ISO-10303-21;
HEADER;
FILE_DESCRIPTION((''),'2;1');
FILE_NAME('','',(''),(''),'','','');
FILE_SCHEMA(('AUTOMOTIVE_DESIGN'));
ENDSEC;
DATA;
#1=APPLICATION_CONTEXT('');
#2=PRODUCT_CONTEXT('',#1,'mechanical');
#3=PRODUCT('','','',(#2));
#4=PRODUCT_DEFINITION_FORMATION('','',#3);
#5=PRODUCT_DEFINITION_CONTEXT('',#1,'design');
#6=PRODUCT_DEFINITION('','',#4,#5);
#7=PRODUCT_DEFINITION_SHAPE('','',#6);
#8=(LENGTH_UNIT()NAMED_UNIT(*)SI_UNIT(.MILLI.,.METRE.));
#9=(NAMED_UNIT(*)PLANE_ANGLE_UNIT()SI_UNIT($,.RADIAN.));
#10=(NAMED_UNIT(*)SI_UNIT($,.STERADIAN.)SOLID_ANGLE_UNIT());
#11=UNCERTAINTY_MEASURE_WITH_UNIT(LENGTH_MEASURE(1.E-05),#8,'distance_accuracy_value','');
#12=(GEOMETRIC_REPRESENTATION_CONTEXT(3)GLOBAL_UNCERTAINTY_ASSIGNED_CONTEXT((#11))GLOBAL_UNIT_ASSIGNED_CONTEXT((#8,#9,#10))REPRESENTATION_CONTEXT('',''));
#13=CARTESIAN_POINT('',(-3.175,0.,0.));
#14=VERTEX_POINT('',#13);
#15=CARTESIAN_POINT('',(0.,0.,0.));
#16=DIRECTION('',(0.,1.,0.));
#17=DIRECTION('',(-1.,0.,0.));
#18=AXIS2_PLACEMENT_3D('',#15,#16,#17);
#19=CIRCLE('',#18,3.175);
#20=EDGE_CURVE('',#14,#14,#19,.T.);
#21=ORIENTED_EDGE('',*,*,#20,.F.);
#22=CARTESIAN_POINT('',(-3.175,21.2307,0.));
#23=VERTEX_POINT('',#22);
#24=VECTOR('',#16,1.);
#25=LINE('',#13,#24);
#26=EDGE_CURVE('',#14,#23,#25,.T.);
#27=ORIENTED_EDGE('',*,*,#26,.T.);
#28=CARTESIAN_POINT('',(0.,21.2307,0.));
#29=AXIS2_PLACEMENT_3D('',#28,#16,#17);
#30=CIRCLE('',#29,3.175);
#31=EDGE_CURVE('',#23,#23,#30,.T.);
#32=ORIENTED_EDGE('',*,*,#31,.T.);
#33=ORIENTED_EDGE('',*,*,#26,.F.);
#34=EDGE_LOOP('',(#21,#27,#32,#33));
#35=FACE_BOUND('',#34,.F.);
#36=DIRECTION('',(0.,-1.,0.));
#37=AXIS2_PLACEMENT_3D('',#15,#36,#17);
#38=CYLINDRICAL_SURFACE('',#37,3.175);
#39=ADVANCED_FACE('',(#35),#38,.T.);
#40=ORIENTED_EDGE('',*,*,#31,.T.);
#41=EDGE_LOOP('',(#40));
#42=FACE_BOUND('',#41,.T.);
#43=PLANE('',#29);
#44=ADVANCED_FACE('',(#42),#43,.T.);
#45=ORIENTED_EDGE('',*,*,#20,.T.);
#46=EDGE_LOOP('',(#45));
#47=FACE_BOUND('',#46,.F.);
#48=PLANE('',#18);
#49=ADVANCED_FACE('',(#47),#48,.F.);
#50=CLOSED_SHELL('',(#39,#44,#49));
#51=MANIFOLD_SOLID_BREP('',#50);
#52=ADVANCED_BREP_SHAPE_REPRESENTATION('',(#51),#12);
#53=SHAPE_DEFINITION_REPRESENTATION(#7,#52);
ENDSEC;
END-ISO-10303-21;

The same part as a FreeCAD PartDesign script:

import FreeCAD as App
import Part
import Sketcher

V = App.Vector
Q = App.Units.Quantity

doc = App.newDocument("Part")
body = doc.addObject("PartDesign::Body", "Body")

sketch1 = doc.addObject("Sketcher::SketchObject", "Sketch")
body.addObject(sketch1)
sketch1.AttachmentSupport = (doc.XZ_Plane, [""])
sketch1.MapMode = "FlatFace"
sketch1.addGeometry(Part.Circle(V(0, 0, 0), V(0, 0, 1), 3.175), False)
sketch1.addConstraint(Sketcher.Constraint("Coincident", 0, 3, -1, 1))
sketch1.addConstraint(Sketcher.Constraint("Diameter", 0, Q("0.25 in")))
pad1 = doc.addObject("PartDesign::Pad", "Pad")
body.addObject(pad1)
pad1.Profile = sketch1
pad1.Length = 21.2307
pad1.Reversed = True

doc.recompute()
